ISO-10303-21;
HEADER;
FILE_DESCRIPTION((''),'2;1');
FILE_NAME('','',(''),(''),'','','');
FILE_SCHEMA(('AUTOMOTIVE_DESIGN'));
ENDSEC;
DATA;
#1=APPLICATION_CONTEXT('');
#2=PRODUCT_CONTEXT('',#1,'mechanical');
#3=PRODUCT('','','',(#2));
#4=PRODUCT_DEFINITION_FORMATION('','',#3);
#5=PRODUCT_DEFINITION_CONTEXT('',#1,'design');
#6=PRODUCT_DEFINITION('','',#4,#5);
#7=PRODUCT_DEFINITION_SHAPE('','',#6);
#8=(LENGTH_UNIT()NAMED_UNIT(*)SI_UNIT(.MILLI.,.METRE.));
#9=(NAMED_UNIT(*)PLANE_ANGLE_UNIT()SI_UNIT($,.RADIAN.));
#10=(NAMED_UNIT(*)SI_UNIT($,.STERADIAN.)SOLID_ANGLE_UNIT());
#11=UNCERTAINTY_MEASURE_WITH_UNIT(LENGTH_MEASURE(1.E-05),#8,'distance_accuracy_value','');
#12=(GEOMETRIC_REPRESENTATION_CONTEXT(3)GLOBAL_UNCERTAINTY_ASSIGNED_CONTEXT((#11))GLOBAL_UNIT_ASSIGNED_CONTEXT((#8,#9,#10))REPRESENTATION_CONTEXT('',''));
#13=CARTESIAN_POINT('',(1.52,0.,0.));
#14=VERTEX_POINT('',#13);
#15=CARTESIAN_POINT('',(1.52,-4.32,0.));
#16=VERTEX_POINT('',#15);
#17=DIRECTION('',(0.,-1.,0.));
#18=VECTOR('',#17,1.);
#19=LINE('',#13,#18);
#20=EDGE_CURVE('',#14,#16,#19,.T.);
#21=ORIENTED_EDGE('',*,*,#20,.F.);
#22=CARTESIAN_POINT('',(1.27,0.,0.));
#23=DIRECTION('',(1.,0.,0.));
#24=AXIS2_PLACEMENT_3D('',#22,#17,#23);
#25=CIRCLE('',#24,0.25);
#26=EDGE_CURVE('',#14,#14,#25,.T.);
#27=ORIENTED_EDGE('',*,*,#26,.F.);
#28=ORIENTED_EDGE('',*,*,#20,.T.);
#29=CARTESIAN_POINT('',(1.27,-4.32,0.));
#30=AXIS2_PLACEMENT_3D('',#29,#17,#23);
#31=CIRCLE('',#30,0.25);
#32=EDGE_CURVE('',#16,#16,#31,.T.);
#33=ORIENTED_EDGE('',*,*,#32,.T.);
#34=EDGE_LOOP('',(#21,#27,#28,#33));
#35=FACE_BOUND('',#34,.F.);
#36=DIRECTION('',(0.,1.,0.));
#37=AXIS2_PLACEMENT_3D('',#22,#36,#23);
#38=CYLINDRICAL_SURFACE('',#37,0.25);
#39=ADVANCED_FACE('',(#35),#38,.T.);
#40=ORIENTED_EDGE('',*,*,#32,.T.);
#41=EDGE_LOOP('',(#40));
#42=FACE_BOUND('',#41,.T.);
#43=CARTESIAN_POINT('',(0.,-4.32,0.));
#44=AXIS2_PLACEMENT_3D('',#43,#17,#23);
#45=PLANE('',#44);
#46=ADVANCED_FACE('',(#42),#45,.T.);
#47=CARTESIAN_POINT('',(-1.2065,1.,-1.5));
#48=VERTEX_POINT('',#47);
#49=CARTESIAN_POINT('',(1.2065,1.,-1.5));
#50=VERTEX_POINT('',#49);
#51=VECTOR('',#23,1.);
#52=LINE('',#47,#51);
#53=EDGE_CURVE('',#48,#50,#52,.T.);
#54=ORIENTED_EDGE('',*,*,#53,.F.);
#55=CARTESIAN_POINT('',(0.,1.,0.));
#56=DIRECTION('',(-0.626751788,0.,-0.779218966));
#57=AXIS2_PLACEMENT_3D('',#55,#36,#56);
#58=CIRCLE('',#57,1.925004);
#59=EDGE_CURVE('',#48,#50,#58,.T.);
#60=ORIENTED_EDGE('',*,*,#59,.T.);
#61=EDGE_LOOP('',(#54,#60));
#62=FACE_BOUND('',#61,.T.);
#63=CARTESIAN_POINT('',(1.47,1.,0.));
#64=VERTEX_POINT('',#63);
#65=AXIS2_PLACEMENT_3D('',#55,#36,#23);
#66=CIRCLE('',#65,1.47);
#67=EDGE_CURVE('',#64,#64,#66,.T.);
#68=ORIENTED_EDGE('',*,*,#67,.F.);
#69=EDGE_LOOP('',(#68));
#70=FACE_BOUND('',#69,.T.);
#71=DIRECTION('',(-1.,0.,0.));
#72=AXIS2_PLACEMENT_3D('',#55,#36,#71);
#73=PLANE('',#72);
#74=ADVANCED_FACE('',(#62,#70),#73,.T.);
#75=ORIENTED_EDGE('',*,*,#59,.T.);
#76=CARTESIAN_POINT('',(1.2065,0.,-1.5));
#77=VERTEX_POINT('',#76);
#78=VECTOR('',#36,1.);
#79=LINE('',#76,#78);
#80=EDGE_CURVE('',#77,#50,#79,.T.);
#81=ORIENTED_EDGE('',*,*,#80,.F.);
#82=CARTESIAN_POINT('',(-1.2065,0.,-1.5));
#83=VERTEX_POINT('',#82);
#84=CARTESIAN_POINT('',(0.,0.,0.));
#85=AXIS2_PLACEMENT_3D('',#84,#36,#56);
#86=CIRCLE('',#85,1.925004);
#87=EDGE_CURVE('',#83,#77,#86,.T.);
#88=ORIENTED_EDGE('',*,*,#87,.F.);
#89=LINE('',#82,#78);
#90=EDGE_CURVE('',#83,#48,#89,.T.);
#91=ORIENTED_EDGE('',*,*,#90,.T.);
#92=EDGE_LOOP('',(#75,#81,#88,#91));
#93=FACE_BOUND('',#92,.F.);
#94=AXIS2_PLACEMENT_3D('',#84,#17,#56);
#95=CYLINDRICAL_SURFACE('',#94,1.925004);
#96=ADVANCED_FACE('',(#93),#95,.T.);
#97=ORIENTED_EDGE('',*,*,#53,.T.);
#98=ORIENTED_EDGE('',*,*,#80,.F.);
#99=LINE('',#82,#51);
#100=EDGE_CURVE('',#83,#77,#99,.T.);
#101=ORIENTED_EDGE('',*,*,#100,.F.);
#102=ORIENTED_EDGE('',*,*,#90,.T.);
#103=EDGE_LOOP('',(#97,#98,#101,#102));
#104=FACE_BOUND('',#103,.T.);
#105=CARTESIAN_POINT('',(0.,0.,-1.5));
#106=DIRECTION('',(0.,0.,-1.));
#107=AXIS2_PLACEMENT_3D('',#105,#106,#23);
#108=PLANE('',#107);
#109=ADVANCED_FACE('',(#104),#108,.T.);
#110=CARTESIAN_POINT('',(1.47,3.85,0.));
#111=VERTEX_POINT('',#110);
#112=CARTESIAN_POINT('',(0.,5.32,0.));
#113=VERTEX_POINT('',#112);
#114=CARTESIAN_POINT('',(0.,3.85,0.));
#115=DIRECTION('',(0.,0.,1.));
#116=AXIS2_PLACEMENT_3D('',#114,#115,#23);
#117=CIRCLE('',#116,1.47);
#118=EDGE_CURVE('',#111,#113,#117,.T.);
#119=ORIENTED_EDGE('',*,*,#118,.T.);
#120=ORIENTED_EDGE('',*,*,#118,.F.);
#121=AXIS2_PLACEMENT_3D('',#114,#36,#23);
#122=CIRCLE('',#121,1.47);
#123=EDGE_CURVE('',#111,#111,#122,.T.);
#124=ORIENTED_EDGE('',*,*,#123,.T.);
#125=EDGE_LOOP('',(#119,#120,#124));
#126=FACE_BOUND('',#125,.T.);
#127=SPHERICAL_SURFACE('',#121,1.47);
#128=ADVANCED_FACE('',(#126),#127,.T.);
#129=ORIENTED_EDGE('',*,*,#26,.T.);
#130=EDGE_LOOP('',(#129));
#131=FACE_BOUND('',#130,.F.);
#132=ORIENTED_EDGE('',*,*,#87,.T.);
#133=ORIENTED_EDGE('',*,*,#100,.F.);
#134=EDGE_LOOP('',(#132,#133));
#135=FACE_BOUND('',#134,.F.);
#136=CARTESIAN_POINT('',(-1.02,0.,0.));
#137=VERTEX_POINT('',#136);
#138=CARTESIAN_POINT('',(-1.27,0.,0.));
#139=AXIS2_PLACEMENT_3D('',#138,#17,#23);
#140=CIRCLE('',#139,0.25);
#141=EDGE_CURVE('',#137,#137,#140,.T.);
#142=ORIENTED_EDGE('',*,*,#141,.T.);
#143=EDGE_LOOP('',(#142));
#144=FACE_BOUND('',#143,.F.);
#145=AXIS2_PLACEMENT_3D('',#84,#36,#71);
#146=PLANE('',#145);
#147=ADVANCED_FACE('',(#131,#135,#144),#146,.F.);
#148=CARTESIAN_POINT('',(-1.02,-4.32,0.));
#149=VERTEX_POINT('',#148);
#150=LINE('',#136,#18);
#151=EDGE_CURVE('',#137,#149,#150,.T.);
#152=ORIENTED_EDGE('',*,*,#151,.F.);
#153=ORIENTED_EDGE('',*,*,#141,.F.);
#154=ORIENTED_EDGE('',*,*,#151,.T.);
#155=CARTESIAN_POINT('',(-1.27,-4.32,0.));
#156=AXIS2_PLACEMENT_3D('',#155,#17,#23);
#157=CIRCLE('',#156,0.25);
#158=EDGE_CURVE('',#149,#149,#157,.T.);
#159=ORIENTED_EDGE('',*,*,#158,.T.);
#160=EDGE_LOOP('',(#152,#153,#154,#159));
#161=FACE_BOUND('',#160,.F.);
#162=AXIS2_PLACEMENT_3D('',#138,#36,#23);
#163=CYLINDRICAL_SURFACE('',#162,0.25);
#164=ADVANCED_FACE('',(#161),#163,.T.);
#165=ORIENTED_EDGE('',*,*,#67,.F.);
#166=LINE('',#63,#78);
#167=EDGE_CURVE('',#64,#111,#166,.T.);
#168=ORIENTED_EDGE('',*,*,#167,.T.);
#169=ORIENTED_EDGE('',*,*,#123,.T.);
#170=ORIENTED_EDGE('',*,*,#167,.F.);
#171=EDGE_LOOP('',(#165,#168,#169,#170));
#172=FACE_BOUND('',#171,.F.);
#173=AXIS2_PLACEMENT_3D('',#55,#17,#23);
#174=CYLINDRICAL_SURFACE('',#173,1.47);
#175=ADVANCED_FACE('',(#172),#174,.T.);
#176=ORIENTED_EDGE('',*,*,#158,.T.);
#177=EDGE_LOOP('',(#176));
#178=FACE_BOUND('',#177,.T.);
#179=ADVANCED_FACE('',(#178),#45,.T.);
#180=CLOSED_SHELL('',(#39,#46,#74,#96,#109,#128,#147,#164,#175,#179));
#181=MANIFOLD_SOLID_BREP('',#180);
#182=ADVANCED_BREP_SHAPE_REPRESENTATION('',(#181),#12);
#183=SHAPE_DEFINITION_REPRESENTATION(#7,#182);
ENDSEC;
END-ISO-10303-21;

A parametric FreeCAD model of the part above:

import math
import FreeCAD as App
import Part
import Sketcher
from FreeCAD import Vector


def edges_at(feature, points):
    """Names of the edges that pass closest to the given points."""
    edges = feature.Shape.Edges
    near = lambda p: min(range(len(edges)), key=lambda i: edges[i].distToShape(Part.Vertex(*p))[0])
    return sorted({f"Edge{near(p) + 1}" for p in points})

doc = App.newDocument("Part")
params = doc.addObject("Spreadsheet::Sheet", "Params")
for row, (alias, value) in enumerate([
    ("pad1_length", "1 mm"),
    ("sketch2_diameter", "2.94 mm"),
    ("pad2_length", "4.32 mm"),
    ("fillet_radius", "1.47 mm"),
    ("sketch3_diameter", "0.5 mm"),
    ("pad3_length", "4.32 mm"),
], start=1):
    params.set(f"A{row}", alias)
    params.set(f"B{row}", "=" + value)
    params.setAlias(f"B{row}", alias)

body = doc.addObject("PartDesign::Body", "Body")

# Sketch on XZ plane
sketch1 = body.newObject("Sketcher::SketchObject", "Sketch")
sketch1.AttachmentSupport = (doc.getObject("XZ_Plane"), [""])
sketch1.MapMode = "FlatFace"
sketch1.addGeometry([
    Part.ArcOfCircle(Part.Circle(Vector(0, 0, 0), Vector(0, 0, 1), 1.9), math.radians(-51), math.radians(231)),
    Part.LineSegment(Vector(1.2, -1.5, 0), Vector(-1.2, -1.5, 0)),
], False)
sketch1.addConstraint([
    Sketcher.Constraint("Coincident", 0, 1, 1, 1),
    Sketcher.Constraint("Coincident", 1, 2, 0, 2),
    Sketcher.Constraint("Horizontal", 1),
    Sketcher.Constraint("Coincident", 0, 3, -1, 1),
    Sketcher.Constraint("Radius", 0, 1.925),
    Sketcher.Constraint("DistanceY", 0, 1, -1, 1, 1.5),
])
pad1 = body.newObject("PartDesign::Pad", "Pad")
pad1.Profile = sketch1
pad1.setExpression("Length", "Params.pad1_length")
pad1.Reversed = True

# Sketch on XZ plane
sketch2 = body.newObject("Sketcher::SketchObject", "Sketch001")
sketch2.AttachmentSupport = (doc.getObject("XZ_Plane"), [""])
sketch2.MapMode = "FlatFace"
sketch2.AttachmentOffset = App.Placement(Vector(0, 0, -1), App.Rotation())
sketch2.addGeometry(Part.Circle(Vector(0, 0, 0), Vector(0, 0, 1), 1.5), False)
sketch2.addConstraint([
    Sketcher.Constraint("Coincident", 0, 3, -1, 1),
    Sketcher.Constraint("Diameter", 0, 2.94),
])
sketch2.setExpression("Constraints[1]", "Params.sketch2_diameter")
pad2 = body.newObject("PartDesign::Pad", "Pad001")
pad2.Profile = sketch2
pad2.setExpression("Length", "Params.pad2_length")
pad2.Reversed = True
doc.recompute()

fillet = body.newObject("PartDesign::Fillet", "Fillet")
fillet.Base = (pad2, edges_at(pad2, [(-1.47, 5.32, 0)]))
fillet.setExpression("Radius", "Params.fillet_radius")

# Sketch on XZ plane
sketch3 = body.newObject("Sketcher::SketchObject", "Sketch002")
sketch3.AttachmentSupport = (doc.getObject("XZ_Plane"), [""])
sketch3.MapMode = "FlatFace"
sketch3.addGeometry([
    Part.Circle(Vector(1.27, 0, 0), Vector(0, 0, 1), 0.25),
    Part.Circle(Vector(-1.27, 0, 0), Vector(0, 0, 1), 0.25),
], False)
sketch3.addConstraint([
    Sketcher.Constraint("Equal", 0, 1),
    Sketcher.Constraint("Symmetric", 0, 3, 1, 3, -1, 1),
    Sketcher.Constraint("PointOnObject", 0, 3, -1),
    Sketcher.Constraint("Diameter", 0, 0.5),
    Sketcher.Constraint("DistanceX", -1, 1, 0, 3, 1.27),
])
sketch3.setExpression("Constraints[3]", "Params.sketch3_diameter")
pad3 = body.newObject("PartDesign::Pad", "Pad002")
pad3.Profile = sketch3
pad3.setExpression("Length", "Params.pad3_length")

doc.recompute()
